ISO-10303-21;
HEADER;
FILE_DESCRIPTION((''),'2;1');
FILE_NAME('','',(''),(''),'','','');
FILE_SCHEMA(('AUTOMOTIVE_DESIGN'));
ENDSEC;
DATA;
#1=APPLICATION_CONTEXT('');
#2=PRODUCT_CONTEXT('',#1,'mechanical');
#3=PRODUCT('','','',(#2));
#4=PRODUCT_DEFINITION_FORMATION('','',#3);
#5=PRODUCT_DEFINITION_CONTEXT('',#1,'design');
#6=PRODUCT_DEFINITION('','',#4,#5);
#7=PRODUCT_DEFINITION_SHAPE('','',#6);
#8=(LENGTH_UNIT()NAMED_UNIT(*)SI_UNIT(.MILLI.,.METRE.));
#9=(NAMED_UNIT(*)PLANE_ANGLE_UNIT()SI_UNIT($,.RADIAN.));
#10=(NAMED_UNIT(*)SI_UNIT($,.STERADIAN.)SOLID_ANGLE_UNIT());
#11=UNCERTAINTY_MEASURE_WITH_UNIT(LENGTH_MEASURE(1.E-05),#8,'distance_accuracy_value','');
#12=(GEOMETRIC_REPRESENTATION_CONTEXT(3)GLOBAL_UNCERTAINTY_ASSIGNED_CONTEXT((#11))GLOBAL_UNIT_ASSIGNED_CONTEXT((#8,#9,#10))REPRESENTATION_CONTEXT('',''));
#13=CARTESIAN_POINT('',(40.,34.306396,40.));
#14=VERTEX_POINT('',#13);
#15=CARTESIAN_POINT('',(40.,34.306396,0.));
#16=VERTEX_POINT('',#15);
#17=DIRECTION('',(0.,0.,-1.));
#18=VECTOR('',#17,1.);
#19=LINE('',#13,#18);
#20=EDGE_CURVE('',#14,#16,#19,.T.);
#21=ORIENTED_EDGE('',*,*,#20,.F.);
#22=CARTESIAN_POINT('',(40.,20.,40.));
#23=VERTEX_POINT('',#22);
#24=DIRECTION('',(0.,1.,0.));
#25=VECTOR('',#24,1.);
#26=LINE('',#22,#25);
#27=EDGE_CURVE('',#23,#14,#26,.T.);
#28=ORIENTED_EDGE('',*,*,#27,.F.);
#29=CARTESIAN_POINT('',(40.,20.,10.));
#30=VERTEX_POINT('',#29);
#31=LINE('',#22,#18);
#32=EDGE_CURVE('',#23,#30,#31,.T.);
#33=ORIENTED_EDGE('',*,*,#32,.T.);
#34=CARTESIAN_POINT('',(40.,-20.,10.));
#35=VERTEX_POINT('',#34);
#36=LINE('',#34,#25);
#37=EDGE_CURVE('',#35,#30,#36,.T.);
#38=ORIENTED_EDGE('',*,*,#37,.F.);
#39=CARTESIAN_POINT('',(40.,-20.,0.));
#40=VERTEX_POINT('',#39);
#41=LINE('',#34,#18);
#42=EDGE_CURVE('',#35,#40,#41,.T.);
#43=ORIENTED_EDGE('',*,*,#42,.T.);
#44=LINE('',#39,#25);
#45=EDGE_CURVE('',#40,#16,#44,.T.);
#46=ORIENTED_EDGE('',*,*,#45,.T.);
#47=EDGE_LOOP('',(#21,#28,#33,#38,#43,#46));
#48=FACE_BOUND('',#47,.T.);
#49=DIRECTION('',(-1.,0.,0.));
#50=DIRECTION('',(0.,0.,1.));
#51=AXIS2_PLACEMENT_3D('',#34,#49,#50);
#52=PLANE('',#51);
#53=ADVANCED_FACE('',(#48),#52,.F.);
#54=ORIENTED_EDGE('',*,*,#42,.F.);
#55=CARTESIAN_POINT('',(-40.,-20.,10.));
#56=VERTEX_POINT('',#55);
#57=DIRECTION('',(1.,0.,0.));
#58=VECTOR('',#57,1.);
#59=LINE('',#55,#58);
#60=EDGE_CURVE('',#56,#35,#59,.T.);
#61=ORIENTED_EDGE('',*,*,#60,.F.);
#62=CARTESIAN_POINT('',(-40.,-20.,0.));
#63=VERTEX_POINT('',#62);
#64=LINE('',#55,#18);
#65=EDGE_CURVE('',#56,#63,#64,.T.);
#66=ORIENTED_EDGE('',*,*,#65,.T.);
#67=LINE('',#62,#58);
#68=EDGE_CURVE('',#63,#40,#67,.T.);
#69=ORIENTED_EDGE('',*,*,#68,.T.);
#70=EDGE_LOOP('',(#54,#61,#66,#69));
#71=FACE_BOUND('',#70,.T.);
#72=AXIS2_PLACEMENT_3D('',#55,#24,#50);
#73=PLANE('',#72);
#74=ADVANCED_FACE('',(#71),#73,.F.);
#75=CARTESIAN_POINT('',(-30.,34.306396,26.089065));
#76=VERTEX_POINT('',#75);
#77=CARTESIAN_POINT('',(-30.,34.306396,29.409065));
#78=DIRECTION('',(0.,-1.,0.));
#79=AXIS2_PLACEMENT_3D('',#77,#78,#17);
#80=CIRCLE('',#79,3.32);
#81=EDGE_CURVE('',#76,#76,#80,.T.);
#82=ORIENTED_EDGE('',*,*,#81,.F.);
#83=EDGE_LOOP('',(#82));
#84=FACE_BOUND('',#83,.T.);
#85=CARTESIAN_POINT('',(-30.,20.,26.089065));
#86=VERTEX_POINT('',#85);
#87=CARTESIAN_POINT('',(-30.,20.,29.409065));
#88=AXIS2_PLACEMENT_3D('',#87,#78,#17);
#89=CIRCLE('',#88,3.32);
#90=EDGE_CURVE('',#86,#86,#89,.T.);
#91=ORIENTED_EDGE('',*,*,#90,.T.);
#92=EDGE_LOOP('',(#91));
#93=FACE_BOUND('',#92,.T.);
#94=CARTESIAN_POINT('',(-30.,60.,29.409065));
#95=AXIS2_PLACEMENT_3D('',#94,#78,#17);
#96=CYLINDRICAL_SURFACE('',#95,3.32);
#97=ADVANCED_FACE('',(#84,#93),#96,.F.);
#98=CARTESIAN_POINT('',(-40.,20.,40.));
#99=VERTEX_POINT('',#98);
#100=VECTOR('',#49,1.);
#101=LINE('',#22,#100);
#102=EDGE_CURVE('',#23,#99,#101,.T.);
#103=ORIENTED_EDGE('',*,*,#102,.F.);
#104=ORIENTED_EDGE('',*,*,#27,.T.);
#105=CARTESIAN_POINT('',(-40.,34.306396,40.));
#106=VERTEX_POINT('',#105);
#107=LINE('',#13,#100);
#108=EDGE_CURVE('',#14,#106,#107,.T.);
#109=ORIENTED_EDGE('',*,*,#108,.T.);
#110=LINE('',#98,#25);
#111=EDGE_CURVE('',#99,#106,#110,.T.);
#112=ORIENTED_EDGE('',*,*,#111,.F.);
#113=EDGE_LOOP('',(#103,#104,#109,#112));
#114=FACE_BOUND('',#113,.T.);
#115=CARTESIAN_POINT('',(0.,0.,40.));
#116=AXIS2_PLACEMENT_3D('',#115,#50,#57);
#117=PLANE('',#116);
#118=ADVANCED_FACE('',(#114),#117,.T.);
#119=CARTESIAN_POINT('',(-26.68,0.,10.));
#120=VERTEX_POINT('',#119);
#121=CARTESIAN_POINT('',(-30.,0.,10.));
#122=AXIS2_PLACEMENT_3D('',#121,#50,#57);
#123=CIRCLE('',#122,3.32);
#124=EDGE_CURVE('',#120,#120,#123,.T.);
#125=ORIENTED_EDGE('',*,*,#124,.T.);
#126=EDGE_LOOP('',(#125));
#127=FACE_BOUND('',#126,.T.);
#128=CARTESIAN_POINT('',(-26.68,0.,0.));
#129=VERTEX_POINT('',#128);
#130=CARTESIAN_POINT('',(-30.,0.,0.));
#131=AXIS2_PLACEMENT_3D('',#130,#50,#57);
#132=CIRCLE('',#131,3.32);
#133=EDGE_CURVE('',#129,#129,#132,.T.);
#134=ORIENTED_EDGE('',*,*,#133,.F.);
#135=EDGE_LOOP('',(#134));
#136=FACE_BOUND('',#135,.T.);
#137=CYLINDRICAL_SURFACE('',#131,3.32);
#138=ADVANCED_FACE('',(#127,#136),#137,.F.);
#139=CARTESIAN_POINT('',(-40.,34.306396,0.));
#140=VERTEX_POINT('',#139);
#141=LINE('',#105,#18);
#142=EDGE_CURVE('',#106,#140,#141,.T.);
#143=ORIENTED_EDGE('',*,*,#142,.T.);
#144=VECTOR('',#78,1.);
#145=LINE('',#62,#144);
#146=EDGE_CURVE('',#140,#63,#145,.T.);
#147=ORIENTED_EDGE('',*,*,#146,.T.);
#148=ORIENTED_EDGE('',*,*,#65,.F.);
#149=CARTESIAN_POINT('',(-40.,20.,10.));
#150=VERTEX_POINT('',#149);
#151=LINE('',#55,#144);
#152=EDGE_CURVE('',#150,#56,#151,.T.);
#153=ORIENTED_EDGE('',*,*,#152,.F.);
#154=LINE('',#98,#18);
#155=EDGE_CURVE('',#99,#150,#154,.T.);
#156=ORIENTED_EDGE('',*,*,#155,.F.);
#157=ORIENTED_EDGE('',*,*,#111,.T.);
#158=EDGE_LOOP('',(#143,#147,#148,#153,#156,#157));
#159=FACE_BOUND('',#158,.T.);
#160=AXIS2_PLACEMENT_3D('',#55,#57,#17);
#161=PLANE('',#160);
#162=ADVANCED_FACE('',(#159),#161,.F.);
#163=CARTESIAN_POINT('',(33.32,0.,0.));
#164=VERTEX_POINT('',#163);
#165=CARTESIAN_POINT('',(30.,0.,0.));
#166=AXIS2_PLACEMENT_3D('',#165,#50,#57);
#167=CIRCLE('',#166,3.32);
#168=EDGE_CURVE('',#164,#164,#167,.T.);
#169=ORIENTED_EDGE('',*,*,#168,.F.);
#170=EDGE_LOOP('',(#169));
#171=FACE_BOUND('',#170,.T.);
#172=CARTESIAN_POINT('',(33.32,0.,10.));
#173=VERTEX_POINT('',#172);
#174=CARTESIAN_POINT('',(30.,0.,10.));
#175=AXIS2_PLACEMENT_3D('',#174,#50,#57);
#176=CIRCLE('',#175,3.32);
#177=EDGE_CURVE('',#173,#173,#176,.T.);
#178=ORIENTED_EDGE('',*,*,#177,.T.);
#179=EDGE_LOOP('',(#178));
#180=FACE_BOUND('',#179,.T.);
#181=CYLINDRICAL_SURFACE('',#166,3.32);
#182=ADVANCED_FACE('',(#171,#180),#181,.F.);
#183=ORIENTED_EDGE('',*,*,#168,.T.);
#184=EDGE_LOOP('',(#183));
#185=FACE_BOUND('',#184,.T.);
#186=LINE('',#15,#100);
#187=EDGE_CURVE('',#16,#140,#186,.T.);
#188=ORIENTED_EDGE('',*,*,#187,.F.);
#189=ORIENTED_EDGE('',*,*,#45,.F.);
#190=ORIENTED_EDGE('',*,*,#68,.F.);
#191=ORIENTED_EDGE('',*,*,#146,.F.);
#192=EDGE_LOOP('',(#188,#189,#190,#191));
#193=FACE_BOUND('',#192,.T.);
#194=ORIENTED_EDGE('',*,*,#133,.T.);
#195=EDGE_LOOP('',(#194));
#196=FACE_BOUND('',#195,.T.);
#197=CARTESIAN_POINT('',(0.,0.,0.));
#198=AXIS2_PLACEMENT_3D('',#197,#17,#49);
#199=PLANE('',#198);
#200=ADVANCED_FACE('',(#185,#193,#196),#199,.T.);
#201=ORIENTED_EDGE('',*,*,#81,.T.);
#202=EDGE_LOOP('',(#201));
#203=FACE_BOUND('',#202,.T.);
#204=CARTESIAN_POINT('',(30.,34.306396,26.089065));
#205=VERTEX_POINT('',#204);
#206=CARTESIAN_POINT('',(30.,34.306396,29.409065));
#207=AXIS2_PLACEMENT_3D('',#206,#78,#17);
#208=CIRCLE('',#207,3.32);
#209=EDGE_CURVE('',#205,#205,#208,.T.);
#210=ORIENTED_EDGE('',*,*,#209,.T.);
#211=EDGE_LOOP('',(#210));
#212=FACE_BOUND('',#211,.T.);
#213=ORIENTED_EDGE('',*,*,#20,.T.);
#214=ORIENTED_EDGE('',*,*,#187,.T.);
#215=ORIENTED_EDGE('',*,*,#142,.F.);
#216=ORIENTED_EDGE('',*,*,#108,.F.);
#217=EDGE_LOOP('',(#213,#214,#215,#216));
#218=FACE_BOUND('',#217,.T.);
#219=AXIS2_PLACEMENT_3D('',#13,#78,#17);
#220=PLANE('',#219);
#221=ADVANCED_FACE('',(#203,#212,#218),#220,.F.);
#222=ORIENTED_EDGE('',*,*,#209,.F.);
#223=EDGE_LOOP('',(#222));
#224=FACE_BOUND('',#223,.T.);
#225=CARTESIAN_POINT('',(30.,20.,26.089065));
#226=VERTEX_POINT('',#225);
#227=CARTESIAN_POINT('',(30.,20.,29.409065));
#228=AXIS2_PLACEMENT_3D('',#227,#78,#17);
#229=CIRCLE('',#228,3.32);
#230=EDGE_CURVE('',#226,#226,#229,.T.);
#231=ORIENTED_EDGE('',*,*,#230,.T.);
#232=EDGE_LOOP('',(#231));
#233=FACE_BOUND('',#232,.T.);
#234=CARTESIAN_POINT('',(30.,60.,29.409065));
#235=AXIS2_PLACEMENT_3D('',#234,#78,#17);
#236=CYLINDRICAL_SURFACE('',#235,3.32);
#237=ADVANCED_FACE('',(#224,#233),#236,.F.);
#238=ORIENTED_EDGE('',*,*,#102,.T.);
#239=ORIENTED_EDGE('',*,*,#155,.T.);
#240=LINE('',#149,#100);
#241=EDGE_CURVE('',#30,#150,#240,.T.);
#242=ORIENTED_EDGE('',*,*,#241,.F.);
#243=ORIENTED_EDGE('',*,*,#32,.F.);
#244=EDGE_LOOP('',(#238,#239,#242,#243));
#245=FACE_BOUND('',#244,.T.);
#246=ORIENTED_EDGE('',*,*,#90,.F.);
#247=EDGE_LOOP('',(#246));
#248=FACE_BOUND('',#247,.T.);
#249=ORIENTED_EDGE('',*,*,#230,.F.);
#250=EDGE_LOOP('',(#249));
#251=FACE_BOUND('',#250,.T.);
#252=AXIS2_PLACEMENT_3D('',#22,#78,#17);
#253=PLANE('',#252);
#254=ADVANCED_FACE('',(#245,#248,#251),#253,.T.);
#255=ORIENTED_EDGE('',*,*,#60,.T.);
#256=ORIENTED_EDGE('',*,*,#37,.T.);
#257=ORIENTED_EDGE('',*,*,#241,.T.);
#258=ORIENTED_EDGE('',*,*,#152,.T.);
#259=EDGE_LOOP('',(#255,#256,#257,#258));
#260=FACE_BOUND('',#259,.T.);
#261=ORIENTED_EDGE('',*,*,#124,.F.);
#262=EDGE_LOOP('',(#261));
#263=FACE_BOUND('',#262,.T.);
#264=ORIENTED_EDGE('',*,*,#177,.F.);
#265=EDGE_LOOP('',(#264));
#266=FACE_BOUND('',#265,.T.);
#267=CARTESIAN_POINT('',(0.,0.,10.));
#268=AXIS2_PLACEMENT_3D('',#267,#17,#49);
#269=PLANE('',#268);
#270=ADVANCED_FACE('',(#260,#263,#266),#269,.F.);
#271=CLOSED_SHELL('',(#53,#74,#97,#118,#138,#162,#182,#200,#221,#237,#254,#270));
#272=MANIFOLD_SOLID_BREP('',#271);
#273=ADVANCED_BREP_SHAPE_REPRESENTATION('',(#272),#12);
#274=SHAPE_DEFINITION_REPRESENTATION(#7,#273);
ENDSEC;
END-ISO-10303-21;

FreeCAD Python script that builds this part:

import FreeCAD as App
import Part
import Sketcher

V = App.Vector
Q = App.Units.Quantity


def add_polygon(sketch, points):
    """Adds a closed chain of lines whose ends are joined by coincident constraints."""
    first, n = sketch.GeometryCount, len(points)
    for a, b in zip(points, points[1:] + points[:1]):
        sketch.addGeometry(Part.LineSegment(App.Vector(*a, 0), App.Vector(*b, 0)), False)
    for i in range(n):
        sketch.addConstraint(Sketcher.Constraint("Coincident", first + i, 2, first + (i + 1) % n, 1))

doc = App.newDocument("Part")
params = doc.addObject("Spreadsheet::Sheet", "Params")
for row, (alias, value) in enumerate([
    ("sketch1_width", "80 mm"),
    ("sketch1_height", "40 mm"),
    ("pad1_length", "10 mm"),
    ("sketch2_diameter", "6.64 mm"),
    ("sketch3_width", "80 mm"),
    ("pad2_length", "40 mm"),
    ("sketch4_diameter", "6.64 mm"),
    ("pocket2_length", "40 mm"),
], start=1):
    params.set(f"A{row}", alias)
    params.set(f"B{row}", "=" + value)
    params.setAlias(f"B{row}", alias)

body = doc.addObject("PartDesign::Body", "Body")

sketch1 = body.newObject("Sketcher::SketchObject", "Sketch")
sketch1.AttachmentSupport = (doc.getObject("XY_Plane"), [""])
sketch1.MapMode = "FlatFace"
add_polygon(sketch1, [(-40, 20), (-40, -20), (40, -20), (40, 20)])
sketch1.addConstraint(Sketcher.Constraint("Vertical", 0))
sketch1.addConstraint(Sketcher.Constraint("Horizontal", 1))
sketch1.addConstraint(Sketcher.Constraint("Vertical", 2))
sketch1.addConstraint(Sketcher.Constraint("Horizontal", 3))
sketch1.addConstraint(Sketcher.Constraint("Symmetric", 0, 2, 2, 2, -1, 1))
sketch1.addConstraint(Sketcher.Constraint("DistanceX", 1, 1, 1, 2, Q("80 mm")))
sketch1.addConstraint(Sketcher.Constraint("DistanceY", 0, 2, 0, 1, Q("40 mm")))
sketch1.setExpression("Constraints[9]", "Params.sketch1_width")
sketch1.setExpression("Constraints[10]", "Params.sketch1_height")
pad1 = body.newObject("PartDesign::Pad", "Pad")
pad1.Profile = sketch1
pad1.setExpression("Length", "Params.pad1_length")

sketch2 = body.newObject("Sketcher::SketchObject", "Sketch001")
sketch2.AttachmentSupport = (doc.getObject("XY_Plane"), [""])
sketch2.MapMode = "FlatFace"
sketch2.AttachmentOffset = App.Placement(V(0, 0, 10), App.Rotation())
sketch2.addGeometry(Part.Circle(V(30, 0, 0), V(0, 0, 1), 3.3), False)
sketch2.addGeometry(Part.Circle(V(-30, 0, 0), V(0, 0, 1), 3.3), False)
sketch2.addConstraint(Sketcher.Constraint("Equal", 0, 1))
sketch2.addConstraint(Sketcher.Constraint("Symmetric", 0, 3, 1, 3, -1, 1))
sketch2.addConstraint(Sketcher.Constraint("PointOnObject", 0, 3, -1))
sketch2.addConstraint(Sketcher.Constraint("Diameter", 0, Q("6.64 mm")))
sketch2.addConstraint(Sketcher.Constraint("DistanceX", -1, 1, 0, 3, Q("30 mm")))
sketch2.setExpression("Constraints[3]", "Params.sketch2_diameter")
pocket1 = body.newObject("PartDesign::Pocket", "Pocket")
pocket1.Profile = sketch2
pocket1.Type = "ThroughAll"

sketch3 = body.newObject("Sketcher::SketchObject", "Sketch002")
sketch3.AttachmentSupport = (doc.getObject("XY_Plane"), [""])
sketch3.MapMode = "FlatFace"
add_polygon(sketch3, [(40, 34), (40, 20), (-40, 20), (-40, 34)])
sketch3.addConstraint(Sketcher.Constraint("Vertical", 0))
sketch3.addConstraint(Sketcher.Constraint("Horizontal", 1))
sketch3.addConstraint(Sketcher.Constraint("Vertical", 2))
sketch3.addConstraint(Sketcher.Constraint("Horizontal", 3))
sketch3.addConstraint(Sketcher.Constraint("DistanceX", 1, 2, 1, 1, Q("80 mm")))
sketch3.addConstraint(Sketcher.Constraint("DistanceX", -1, 1, 0, 2, Q("40 mm")))
sketch3.addConstraint(Sketcher.Constraint("DistanceY", -1, 1, 0, 2, Q("20 mm")))
sketch3.addConstraint(Sketcher.Constraint("DistanceY", 0, 2, 0, 1, Q("14.306396 mm")))
sketch3.setExpression("Constraints[8]", "Params.sketch3_width")
pad2 = body.newObject("PartDesign::Pad", "Pad001")
pad2.Profile = sketch3
pad2.setExpression("Length", "Params.pad2_length")

sketch4 = body.newObject("Sketcher::SketchObject", "Sketch003")
sketch4.AttachmentSupport = (doc.getObject("XZ_Plane"), [""])
sketch4.MapMode = "FlatFace"
sketch4.AttachmentOffset = App.Placement(V(0, 0, -20), App.Rotation())
sketch4.addGeometry(Part.Circle(V(30, 29.4, 0), V(0, 0, 1), 3.3), False)
sketch4.addGeometry(Part.Circle(V(-30, 29.4, 0), V(0, 0, 1), 3.3), False)
sketch4.addConstraint(Sketcher.Constraint("Equal", 0, 1))
sketch4.addConstraint(Sketcher.Constraint("Symmetric", 0, 3, 1, 3, -2))
sketch4.addConstraint(Sketcher.Constraint("Diameter", 0, Q("6.64 mm")))
sketch4.addConstraint(Sketcher.Constraint("DistanceX", -1, 1, 0, 3, Q("30 mm")))
sketch4.addConstraint(Sketcher.Constraint("DistanceY", -1, 1, 0, 3, Q("29.409065 mm")))
sketch4.setExpression("Constraints[2]", "Params.sketch4_diameter")
pocket2 = body.newObject("PartDesign::Pocket", "Pocket001")
pocket2.Profile = sketch4
pocket2.setExpression("Length", "Params.pocket2_length")

doc.recompute()
